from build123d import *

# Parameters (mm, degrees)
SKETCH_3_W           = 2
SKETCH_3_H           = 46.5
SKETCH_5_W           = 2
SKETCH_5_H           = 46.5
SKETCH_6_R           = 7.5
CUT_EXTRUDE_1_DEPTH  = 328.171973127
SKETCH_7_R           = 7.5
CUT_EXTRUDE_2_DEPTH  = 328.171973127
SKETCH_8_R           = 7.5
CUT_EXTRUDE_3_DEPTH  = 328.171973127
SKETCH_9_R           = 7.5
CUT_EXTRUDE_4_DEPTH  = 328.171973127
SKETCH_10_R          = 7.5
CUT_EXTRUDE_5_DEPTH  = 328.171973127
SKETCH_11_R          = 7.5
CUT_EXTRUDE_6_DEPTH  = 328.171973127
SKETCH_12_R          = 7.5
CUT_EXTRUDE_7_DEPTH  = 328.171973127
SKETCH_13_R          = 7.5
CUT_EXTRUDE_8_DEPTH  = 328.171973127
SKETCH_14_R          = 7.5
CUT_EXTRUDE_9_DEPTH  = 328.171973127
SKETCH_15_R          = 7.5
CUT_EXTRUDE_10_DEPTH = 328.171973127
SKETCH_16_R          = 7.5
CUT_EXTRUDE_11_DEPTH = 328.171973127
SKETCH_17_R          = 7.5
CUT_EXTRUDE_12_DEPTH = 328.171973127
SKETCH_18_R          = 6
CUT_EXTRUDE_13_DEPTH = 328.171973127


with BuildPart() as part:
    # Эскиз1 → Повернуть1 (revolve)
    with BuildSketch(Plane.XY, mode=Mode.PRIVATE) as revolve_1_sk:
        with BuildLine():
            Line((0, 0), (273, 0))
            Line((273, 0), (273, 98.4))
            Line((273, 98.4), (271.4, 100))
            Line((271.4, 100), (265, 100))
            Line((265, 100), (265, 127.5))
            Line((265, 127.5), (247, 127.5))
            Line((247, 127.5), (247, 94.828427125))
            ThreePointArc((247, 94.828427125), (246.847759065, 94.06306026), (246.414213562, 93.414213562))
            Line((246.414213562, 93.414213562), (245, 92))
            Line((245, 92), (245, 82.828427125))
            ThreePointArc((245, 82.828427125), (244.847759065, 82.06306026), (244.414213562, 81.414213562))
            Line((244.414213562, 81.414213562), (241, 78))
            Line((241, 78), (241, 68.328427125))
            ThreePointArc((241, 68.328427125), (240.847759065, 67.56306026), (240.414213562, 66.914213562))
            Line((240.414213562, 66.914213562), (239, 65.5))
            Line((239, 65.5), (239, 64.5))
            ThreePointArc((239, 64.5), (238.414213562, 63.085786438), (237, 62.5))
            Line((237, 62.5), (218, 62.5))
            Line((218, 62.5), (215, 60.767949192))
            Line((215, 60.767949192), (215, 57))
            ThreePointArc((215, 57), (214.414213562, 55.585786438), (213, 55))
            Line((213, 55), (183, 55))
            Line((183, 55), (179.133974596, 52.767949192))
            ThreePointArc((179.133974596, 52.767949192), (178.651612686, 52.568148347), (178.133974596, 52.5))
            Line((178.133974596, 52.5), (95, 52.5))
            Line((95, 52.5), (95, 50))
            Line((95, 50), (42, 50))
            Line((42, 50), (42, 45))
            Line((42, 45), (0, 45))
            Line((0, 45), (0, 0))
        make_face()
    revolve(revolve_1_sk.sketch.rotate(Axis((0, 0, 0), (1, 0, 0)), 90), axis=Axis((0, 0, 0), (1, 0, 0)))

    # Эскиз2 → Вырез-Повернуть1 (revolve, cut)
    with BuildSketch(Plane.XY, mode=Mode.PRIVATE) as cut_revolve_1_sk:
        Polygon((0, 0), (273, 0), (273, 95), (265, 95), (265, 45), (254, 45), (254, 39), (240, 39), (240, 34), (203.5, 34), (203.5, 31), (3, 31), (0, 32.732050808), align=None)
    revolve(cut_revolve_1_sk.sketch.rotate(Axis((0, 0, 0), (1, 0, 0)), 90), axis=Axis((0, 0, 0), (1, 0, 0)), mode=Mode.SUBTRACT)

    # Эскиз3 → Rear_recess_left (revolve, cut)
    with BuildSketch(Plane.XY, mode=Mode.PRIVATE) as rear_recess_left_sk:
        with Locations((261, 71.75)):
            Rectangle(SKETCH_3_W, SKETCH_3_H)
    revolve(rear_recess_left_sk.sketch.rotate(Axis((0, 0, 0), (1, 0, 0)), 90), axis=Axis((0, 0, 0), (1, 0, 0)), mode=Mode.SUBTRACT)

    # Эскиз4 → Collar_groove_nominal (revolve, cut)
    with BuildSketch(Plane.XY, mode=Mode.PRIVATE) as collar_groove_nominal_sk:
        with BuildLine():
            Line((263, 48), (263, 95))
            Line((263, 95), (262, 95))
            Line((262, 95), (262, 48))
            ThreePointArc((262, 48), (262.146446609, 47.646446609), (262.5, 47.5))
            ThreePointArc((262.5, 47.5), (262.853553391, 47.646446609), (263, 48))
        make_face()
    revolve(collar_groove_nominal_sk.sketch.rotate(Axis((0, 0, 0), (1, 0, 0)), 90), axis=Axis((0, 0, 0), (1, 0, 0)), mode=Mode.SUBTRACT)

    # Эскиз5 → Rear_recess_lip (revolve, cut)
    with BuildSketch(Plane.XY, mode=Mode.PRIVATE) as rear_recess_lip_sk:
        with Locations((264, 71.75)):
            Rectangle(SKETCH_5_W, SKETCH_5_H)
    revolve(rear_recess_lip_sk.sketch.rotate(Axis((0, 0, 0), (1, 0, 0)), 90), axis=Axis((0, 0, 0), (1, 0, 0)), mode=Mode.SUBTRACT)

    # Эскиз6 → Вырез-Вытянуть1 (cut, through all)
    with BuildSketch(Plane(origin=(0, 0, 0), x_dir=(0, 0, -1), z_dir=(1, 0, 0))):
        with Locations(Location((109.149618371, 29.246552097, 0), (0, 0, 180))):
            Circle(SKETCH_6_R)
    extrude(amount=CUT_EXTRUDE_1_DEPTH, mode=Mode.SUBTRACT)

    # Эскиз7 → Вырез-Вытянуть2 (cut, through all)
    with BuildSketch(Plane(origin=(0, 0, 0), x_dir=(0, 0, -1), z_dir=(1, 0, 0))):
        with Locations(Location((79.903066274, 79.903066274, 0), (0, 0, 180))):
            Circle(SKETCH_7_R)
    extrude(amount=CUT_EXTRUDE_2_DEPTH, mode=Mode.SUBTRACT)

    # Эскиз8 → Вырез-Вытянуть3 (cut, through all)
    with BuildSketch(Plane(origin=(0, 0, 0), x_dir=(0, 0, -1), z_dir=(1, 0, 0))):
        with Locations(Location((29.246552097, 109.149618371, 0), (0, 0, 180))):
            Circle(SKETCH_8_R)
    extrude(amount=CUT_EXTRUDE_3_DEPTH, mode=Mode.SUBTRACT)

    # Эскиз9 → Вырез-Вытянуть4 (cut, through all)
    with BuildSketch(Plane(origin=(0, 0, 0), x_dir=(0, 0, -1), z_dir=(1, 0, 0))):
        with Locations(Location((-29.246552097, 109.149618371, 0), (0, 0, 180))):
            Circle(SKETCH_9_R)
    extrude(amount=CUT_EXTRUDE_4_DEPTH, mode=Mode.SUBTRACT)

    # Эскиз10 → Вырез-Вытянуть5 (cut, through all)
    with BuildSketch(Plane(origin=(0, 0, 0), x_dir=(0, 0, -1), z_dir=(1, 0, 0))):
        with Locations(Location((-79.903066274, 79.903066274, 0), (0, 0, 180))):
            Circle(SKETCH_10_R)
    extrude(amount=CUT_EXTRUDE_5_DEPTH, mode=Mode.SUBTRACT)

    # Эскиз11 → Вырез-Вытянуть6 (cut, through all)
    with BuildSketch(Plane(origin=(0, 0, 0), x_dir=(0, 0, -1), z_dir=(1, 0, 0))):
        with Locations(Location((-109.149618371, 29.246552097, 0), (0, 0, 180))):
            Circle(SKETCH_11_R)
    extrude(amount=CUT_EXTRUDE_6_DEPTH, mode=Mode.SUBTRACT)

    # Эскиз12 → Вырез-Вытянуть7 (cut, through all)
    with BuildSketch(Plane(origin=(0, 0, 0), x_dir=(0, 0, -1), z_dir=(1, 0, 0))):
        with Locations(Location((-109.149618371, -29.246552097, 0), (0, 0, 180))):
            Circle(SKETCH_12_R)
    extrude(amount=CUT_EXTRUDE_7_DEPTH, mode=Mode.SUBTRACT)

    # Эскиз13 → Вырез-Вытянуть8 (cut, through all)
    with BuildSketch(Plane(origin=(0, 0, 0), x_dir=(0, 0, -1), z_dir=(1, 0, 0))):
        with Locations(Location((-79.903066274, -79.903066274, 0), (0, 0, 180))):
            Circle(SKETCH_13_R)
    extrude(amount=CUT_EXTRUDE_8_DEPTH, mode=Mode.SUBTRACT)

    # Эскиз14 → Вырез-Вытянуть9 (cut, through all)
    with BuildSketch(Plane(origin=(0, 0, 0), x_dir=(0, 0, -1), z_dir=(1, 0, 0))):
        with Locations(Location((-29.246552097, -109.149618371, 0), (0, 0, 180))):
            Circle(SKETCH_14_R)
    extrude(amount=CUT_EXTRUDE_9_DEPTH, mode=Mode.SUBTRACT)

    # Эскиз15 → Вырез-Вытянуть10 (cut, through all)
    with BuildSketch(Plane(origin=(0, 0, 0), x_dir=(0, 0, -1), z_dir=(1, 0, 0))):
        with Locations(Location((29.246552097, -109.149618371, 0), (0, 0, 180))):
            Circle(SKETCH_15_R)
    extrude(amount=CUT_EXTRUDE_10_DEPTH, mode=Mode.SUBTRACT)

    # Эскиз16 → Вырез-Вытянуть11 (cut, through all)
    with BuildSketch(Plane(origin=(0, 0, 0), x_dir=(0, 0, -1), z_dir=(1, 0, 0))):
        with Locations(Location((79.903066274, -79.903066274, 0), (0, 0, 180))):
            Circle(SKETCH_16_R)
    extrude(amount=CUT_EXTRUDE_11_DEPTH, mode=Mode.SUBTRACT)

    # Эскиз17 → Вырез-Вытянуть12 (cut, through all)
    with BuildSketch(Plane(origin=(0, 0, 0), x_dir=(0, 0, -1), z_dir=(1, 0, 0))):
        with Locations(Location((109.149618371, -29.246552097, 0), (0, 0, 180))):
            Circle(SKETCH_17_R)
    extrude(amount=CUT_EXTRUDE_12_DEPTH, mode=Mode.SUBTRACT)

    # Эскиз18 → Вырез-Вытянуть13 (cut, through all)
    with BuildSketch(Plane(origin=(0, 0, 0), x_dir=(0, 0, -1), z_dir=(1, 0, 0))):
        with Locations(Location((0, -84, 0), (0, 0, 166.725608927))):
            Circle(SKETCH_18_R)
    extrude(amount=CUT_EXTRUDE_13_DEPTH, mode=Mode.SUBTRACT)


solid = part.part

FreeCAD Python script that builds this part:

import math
import FreeCAD as App
import Part
import Sketcher
Q = App.Units.Quantity

doc = App.newDocument("Part")
params = doc.addObject("Spreadsheet::Sheet", "Params")
for row, (alias, value) in enumerate([
    ("sketch1_radius", "2 mm"),
    ("sketch1_width", "273 mm"),
    ("sketch1_width2", "18 mm"),
    ("sketch1_width3", "19 mm"),
    ("sketch1_width4", "30 mm"),
    ("revolution_angle", "360 deg"),
    ("sketch2_width", "273 mm"),
    ("sketch2_width2", "8 mm"),
    ("sketch2_width3", "11 mm"),
    ("sketch2_width4", "14 mm"),
    ("sketch2_height", "95 mm"),
    ("groove_angle", "360 deg"),
    ("sketch3_width", "2 mm"),
    ("sketch3_height", "46.5 mm"),
    ("groove2_angle", "360 deg"),
    ("sketch4_radius", "0.5 mm"),
    ("sketch4_height", "47 mm"),
    ("groove3_angle", "360 deg"),
    ("sketch5_width", "2 mm"),
    ("sketch5_height", "46.5 mm"),
    ("groove4_angle", "360 deg"),
    ("sketch6_diameter", "15 mm"),
    ("sketch7_diameter", "15 mm"),
    ("sketch8_diameter", "15 mm"),
    ("sketch9_diameter", "15 mm"),
    ("sketch10_diameter", "15 mm"),
    ("sketch11_diameter", "15 mm"),
    ("sketch12_diameter", "15 mm"),
    ("sketch13_diameter", "15 mm"),
    ("sketch14_diameter", "15 mm"),
    ("sketch15_diameter", "15 mm"),
    ("sketch16_diameter", "15 mm"),
    ("sketch17_diameter", "15 mm"),
    ("sketch18_diameter", "12 mm"),
], start=1):
    params.set(f"A{row}", alias)
    params.set(f"B{row}", "=" + value)
    params.setAlias(f"B{row}", alias)

body = doc.addObject("PartDesign::Body", "Body")

sketch1 = body.newObject("Sketcher::SketchObject", "Sketch")
sketch1.AttachmentSupport = (doc.getObject("XY_Plane"), [""])
sketch1.MapMode = "FlatFace"
sketch1.addGeometry([
    Part.LineSegment(App.Vector(0, 0, 0), App.Vector(273, 0, 0)),
    Part.LineSegment(App.Vector(273, 0, 0), App.Vector(273, 98.4, 0)),
    Part.LineSegment(App.Vector(273, 98.4, 0), App.Vector(271.4, 100, 0)),
    Part.LineSegment(App.Vector(271.4, 100, 0), App.Vector(265, 100, 0)),
    Part.LineSegment(App.Vector(265, 100, 0), App.Vector(265, 127.5, 0)),
    Part.LineSegment(App.Vector(265, 127.5, 0), App.Vector(247, 127.5, 0)),
    Part.LineSegment(App.Vector(247, 127.5, 0), App.Vector(247, 94.8, 0)),
    Part.ArcOfCircle(Part.Circle(App.Vector(245, 94.8, 0), App.Vector(0, 0, 1), 2), math.radians(-45), math.radians(0)),
    Part.LineSegment(App.Vector(246.4, 93.4, 0), App.Vector(245, 92, 0)),
    Part.LineSegment(App.Vector(245, 92, 0), App.Vector(245, 82.8, 0)),
    Part.ArcOfCircle(Part.Circle(App.Vector(243, 82.8, 0), App.Vector(0, 0, 1), 2), math.radians(-45), math.radians(0)),
    Part.LineSegment(App.Vector(244.4, 81.4, 0), App.Vector(241, 78, 0)),
    Part.LineSegment(App.Vector(241, 78, 0), App.Vector(241, 68.3, 0)),
    Part.ArcOfCircle(Part.Circle(App.Vector(239, 68.3, 0), App.Vector(0, 0, 1), 2), math.radians(-45), math.radians(0)),
    Part.LineSegment(App.Vector(240.4, 66.9, 0), App.Vector(239, 65.5, 0)),
    Part.LineSegment(App.Vector(239, 65.5, 0), App.Vector(239, 64.5, 0)),
    Part.ArcOfCircle(Part.Circle(App.Vector(237, 64.5, 0), App.Vector(0, 0, 1), 2), math.radians(-90), math.radians(0)),
    Part.LineSegment(App.Vector(237, 62.5, 0), App.Vector(218, 62.5, 0)),
    Part.LineSegment(App.Vector(218, 62.5, 0), App.Vector(215, 60.8, 0)),
    Part.LineSegment(App.Vector(215, 60.8, 0), App.Vector(215, 57, 0)),
    Part.ArcOfCircle(Part.Circle(App.Vector(213, 57, 0), App.Vector(0, 0, 1), 2), math.radians(-90), math.radians(0)),
    Part.LineSegment(App.Vector(213, 55, 0), App.Vector(183, 55, 0)),
    Part.LineSegment(App.Vector(183, 55, 0), App.Vector(179.1, 52.8, 0)),
    Part.ArcOfCircle(Part.Circle(App.Vector(178.1, 54.5, 0), App.Vector(0, 0, 1), 2), math.radians(-90), math.radians(-60)),
    Part.LineSegment(App.Vector(178.1, 52.5, 0), App.Vector(95, 52.5, 0)),
    Part.LineSegment(App.Vector(95, 52.5, 0), App.Vector(95, 50, 0)),
    Part.LineSegment(App.Vector(95, 50, 0), App.Vector(42, 50, 0)),
    Part.LineSegment(App.Vector(42, 50, 0), App.Vector(42, 45, 0)),
    Part.LineSegment(App.Vector(42, 45, 0), App.Vector(0, 45, 0)),
    Part.LineSegment(App.Vector(0, 45, 0), App.Vector(0, 0, 0)),
], False)
sketch1.addConstraint([
    Sketcher.Constraint("Coincident", 0, 2, 1, 1),
    Sketcher.Constraint("Coincident", 1, 2, 2, 1),
    Sketcher.Constraint("Coincident", 2, 2, 3, 1),
    Sketcher.Constraint("Coincident", 3, 2, 4, 1),
    Sketcher.Constraint("Coincident", 4, 2, 5, 1),
    Sketcher.Constraint("Coincident", 5, 2, 6, 1),
    Sketcher.Constraint("Tangent", 6, 2, 7, 2),
    Sketcher.Constraint("Tangent", 7, 1, 8, 1),
    Sketcher.Constraint("Coincident", 8, 2, 9, 1),
    Sketcher.Constraint("Tangent", 9, 2, 10, 2),
    Sketcher.Constraint("Tangent", 10, 1, 11, 1),
    Sketcher.Constraint("Coincident", 11, 2, 12, 1),
    Sketcher.Constraint("Tangent", 12, 2, 13, 2),
    Sketcher.Constraint("Tangent", 13, 1, 14, 1),
    Sketcher.Constraint("Coincident", 14, 2, 15, 1),
    Sketcher.Constraint("Tangent", 15, 2, 16, 2),
    Sketcher.Constraint("Tangent", 16, 1, 17, 1),
    Sketcher.Constraint("Coincident", 17, 2, 18, 1),
    Sketcher.Constraint("Coincident", 18, 2, 19, 1),
    Sketcher.Constraint("Tangent", 19, 2, 20, 2),
    Sketcher.Constraint("Tangent", 20, 1, 21, 1),
    Sketcher.Constraint("Coincident", 21, 2, 22, 1),
    Sketcher.Constraint("Tangent", 22, 2, 23, 2),
    Sketcher.Constraint("Tangent", 23, 1, 24, 1),
    Sketcher.Constraint("Coincident", 24, 2, 25, 1),
    Sketcher.Constraint("Coincident", 25, 2, 26, 1),
    Sketcher.Constraint("Coincident", 26, 2, 27, 1),
    Sketcher.Constraint("Coincident", 27, 2, 28, 1),
    Sketcher.Constraint("Coincident", 28, 2, 29, 1),
    Sketcher.Constraint("Coincident", 29, 2, 0, 1),
    Sketcher.Constraint("Horizontal", 0),
    Sketcher.Constraint("Vertical", 1),
    Sketcher.Constraint("Horizontal", 3),
    Sketcher.Constraint("Vertical", 4),
    Sketcher.Constraint("Horizontal", 5),
    Sketcher.Constraint("Vertical", 6),
    Sketcher.Constraint("Vertical", 9),
    Sketcher.Constraint("Vertical", 12),
    Sketcher.Constraint("Vertical", 15),
    Sketcher.Constraint("Horizontal", 17),
    Sketcher.Constraint("Vertical", 19),
    Sketcher.Constraint("Horizontal", 21),
    Sketcher.Constraint("Horizontal", 24),
    Sketcher.Constraint("Vertical", 25),
    Sketcher.Constraint("Horizontal", 26),
    Sketcher.Constraint("Vertical", 27),
    Sketcher.Constraint("Horizontal", 28),
    Sketcher.Constraint("Vertical", 29),
    Sketcher.Constraint("Coincident", 29, 2, -1, 1),
    Sketcher.Constraint("Equal", 7, 10),
    Sketcher.Constraint("Equal", 10, 13),
    Sketcher.Constraint("Equal", 13, 16),
    Sketcher.Constraint("Equal", 16, 20),
    Sketcher.Constraint("Equal", 20, 23),
    Sketcher.Constraint("Perpendicular", 2, 8),
    Sketcher.Constraint("Parallel", 8, 11),
    Sketcher.Constraint("Parallel", 11, 14),
    Sketcher.Constraint("Parallel", 18, 22),
    Sketcher.Constraint("Vertical", 7, 3, 8, 2),
    Sketcher.Constraint("Vertical", 13, 3, 14, 2),
    Sketcher.Constraint("Radius", 7, 2.0),
    Sketcher.Constraint("DistanceX", 0, 1, 0, 2, 273.0),
    Sketcher.Constraint("DistanceX", 5, 2, 5, 1, 18.0),
    Sketcher.Constraint("DistanceX", 17, 2, 17, 1, 19.0),
    Sketcher.Constraint("DistanceX", 21, 2, 21, 1, 30.0),
    Sketcher.Constraint("DistanceX", 26, 2, 26, 1, 53.0),
    Sketcher.Constraint("DistanceX", 28, 2, 28, 1, 42.0),
    Sketcher.Constraint("DistanceY", 15, 2, 15, 1, 1.0),
    Sketcher.Constraint("DistanceY", 27, 2, 27, 1, 5.0),
    Sketcher.Constraint("DistanceY", 29, 2, 29, 1, 45.0),
    Sketcher.Constraint("Angle", 2, Q("135 deg")),
    Sketcher.Constraint("Angle", 18, Q("-150 deg")),
    Sketcher.Constraint("DistanceX", 3, 2, 3, 1, 6.4),
    Sketcher.Constraint("DistanceY", 1, 1, 1, 2, 98.4),
    Sketcher.Constraint("DistanceY", 4, 1, 4, 2, 27.5),
    Sketcher.Constraint("DistanceY", 25, 2, 25, 1, 2.5),
    Sketcher.Constraint("DistanceX", -1, 1, 7, 3, 245.0),
    Sketcher.Constraint("DistanceX", -1, 1, 13, 3, 239.0),
    Sketcher.Constraint("DistanceX", -1, 1, 20, 3, 213.0),
    Sketcher.Constraint("DistanceY", -1, 1, 20, 3, 57.0),
    Sketcher.Constraint("DistanceY", -1, 1, 8, 2, 92.0),
    Sketcher.Constraint("DistanceY", -1, 1, 11, 2, 78.0),
    Sketcher.Constraint("DistanceY", 23, 3, 16, 3, 10.0),
])
sketch1.setExpression("Constraints[60]", "Params.sketch1_radius")
sketch1.setExpression("Constraints[61]", "Params.sketch1_width")
sketch1.setExpression("Constraints[62]", "Params.sketch1_width2")
sketch1.setExpression("Constraints[63]", "Params.sketch1_width3")
sketch1.setExpression("Constraints[64]", "Params.sketch1_width4")
revolution = body.newObject("PartDesign::Revolution", "Revolution")
revolution.Profile = sketch1
revolution.ReferenceAxis = (sketch1, ["H_Axis"])
revolution.setExpression("Angle", "Params.revolution_angle")

sketch2 = body.newObject("Sketcher::SketchObject", "Sketch001")
sketch2.AttachmentSupport = (doc.getObject("XY_Plane"), [""])
sketch2.MapMode = "FlatFace"
sketch2.addGeometry([
    Part.LineSegment(App.Vector(0, 0, 0), App.Vector(273, 0, 0)),
    Part.LineSegment(App.Vector(273, 0, 0), App.Vector(273, 95, 0)),
    Part.LineSegment(App.Vector(273, 95, 0), App.Vector(265, 95, 0)),
    Part.LineSegment(App.Vector(265, 95, 0), App.Vector(265, 45, 0)),
    Part.LineSegment(App.Vector(265, 45, 0), App.Vector(254, 45, 0)),
    Part.LineSegment(App.Vector(254, 45, 0), App.Vector(254, 39, 0)),
    Part.LineSegment(App.Vector(254, 39, 0), App.Vector(240, 39, 0)),
    Part.LineSegment(App.Vector(240, 39, 0), App.Vector(240, 34, 0)),
    Part.LineSegment(App.Vector(240, 34, 0), App.Vector(203.5, 34, 0)),
    Part.LineSegment(App.Vector(203.5, 34, 0), App.Vector(203.5, 31, 0)),
    Part.LineSegment(App.Vector(203.5, 31, 0), App.Vector(3, 31, 0)),
    Part.LineSegment(App.Vector(3, 31, 0), App.Vector(0, 32.7, 0)),
    Part.LineSegment(App.Vector(0, 32.7, 0), App.Vector(0, 0, 0)),
], False)
sketch2.addConstraint([
    Sketcher.Constraint("Coincident", 0, 2, 1, 1),
    Sketcher.Constraint("Coincident", 1, 2, 2, 1),
    Sketcher.Constraint("Coincident", 2, 2, 3, 1),
    Sketcher.Constraint("Coincident", 3, 2, 4, 1),
    Sketcher.Constraint("Coincident", 4, 2, 5, 1),
    Sketcher.Constraint("Coincident", 5, 2, 6, 1),
    Sketcher.Constraint("Coincident", 6, 2, 7, 1),
    Sketcher.Constraint("Coincident", 7, 2, 8, 1),
    Sketcher.Constraint("Coincident", 8, 2, 9, 1),
    Sketcher.Constraint("Coincident", 9, 2, 10, 1),
    Sketcher.Constraint("Coincident", 10, 2, 11, 1),
    Sketcher.Constraint("Coincident", 11, 2, 12, 1),
    Sketcher.Constraint("Coincident", 12, 2, 0, 1),
    Sketcher.Constraint("Horizontal", 0),
    Sketcher.Constraint("Vertical", 1),
    Sketcher.Constraint("Horizontal", 2),
    Sketcher.Constraint("Vertical", 3),
    Sketcher.Constraint("Horizontal", 4),
    Sketcher.Constraint("Vertical", 5),
    Sketcher.Constraint("Horizontal", 6),
    Sketcher.Constraint("Vertical", 7),
    Sketcher.Constraint("Horizontal", 8),
    Sketcher.Constraint("Vertical", 9),
    Sketcher.Constraint("Horizontal", 10),
    Sketcher.Constraint("Vertical", 12),
    Sketcher.Constraint("Coincident", 12, 2, -1, 1),
    Sketcher.Constraint("DistanceX", 0, 1, 0, 2, 273.0),
    Sketcher.Constraint("DistanceX", 2, 2, 2, 1, 8.0),
    Sketcher.Constraint("DistanceX", 4, 2, 4, 1, 11.0),
    Sketcher.Constraint("DistanceX", 6, 2, 6, 1, 14.0),
    Sketcher.Constraint("DistanceY", 1, 1, 1, 2, 95.0),
    Sketcher.Constraint("DistanceY", 3, 2, 3, 1, 50.0),
    Sketcher.Constraint("DistanceY", 5, 2, 5, 1, 6.0),
    Sketcher.Constraint("DistanceY", 7, 2, 7, 1, 5.0),
    Sketcher.Constraint("DistanceY", 9, 2, 9, 1, 3.0),
    Sketcher.Constraint("Angle", 11, Q("150 deg")),
    Sketcher.Constraint("DistanceX", 8, 2, 8, 1, 36.5),
    Sketcher.Constraint("DistanceX", 10, 2, 10, 1, 200.5),
])
sketch2.setExpression("Constraints[26]", "Params.sketch2_width")
sketch2.setExpression("Constraints[27]", "Params.sketch2_width2")
sketch2.setExpression("Constraints[28]", "Params.sketch2_width3")
sketch2.setExpression("Constraints[29]", "Params.sketch2_width4")
sketch2.setExpression("Constraints[30]", "Params.sketch2_height")
groove = body.newObject("PartDesign::Groove", "Groove")
groove.Profile = sketch2
groove.ReferenceAxis = (sketch2, ["H_Axis"])
groove.setExpression("Angle", "Params.groove_angle")

sketch3 = body.newObject("Sketcher::SketchObject", "Sketch002")
sketch3.AttachmentSupport = (doc.getObject("XY_Plane"), [""])
sketch3.MapMode = "FlatFace"
sketch3.addGeometry([
    Part.LineSegment(App.Vector(260, 95, 0), App.Vector(260, 48.5, 0)),
    Part.LineSegment(App.Vector(260, 48.5, 0), App.Vector(262, 48.5, 0)),
    Part.LineSegment(App.Vector(262, 48.5, 0), App.Vector(262, 95, 0)),
    Part.LineSegment(App.Vector(262, 95, 0), App.Vector(260, 95, 0)),
], False)
sketch3.addConstraint([
    Sketcher.Constraint("Coincident", 0, 2, 1, 1),
    Sketcher.Constraint("Coincident", 1, 2, 2, 1),
    Sketcher.Constraint("Coincident", 2, 2, 3, 1),
    Sketcher.Constraint("Coincident", 3, 2, 0, 1),
    Sketcher.Constraint("Vertical", 0),
    Sketcher.Constraint("Horizontal", 1),
    Sketcher.Constraint("Vertical", 2),
    Sketcher.Constraint("Horizontal", 3),
    Sketcher.Constraint("DistanceX", 1, 1, 1, 2, 2.0),
    Sketcher.Constraint("DistanceY", 0, 2, 0, 1, 46.5),
    Sketcher.Constraint("DistanceX", -1, 1, 0, 2, 260.0),
    Sketcher.Constraint("DistanceY", -1, 1, 2, 2, 95.0),
])
sketch3.setExpression("Constraints[8]", "Params.sketch3_width")
sketch3.setExpression("Constraints[9]", "Params.sketch3_height")
groove2 = body.newObject("PartDesign::Groove", "Groove001")
groove2.Profile = sketch3
groove2.ReferenceAxis = (sketch3, ["H_Axis"])
groove2.setExpression("Angle", "Params.groove2_angle")

sketch4 = body.newObject("Sketcher::SketchObject", "Sketch003")
sketch4.AttachmentSupport = (doc.getObject("XY_Plane"), [""])
sketch4.MapMode = "FlatFace"
sketch4.addGeometry([
    Part.LineSegment(App.Vector(263, 48, 0), App.Vector(263, 95, 0)),
    Part.LineSegment(App.Vector(263, 95, 0), App.Vector(262, 95, 0)),
    Part.LineSegment(App.Vector(262, 95, 0), App.Vector(262, 48, 0)),
    Part.ArcOfCircle(Part.Circle(App.Vector(262.5, 48, 0), App.Vector(0, 0, 1), 0.5), math.radians(180), math.radians(270)),
    Part.ArcOfCircle(Part.Circle(App.Vector(262.5, 48, 0), App.Vector(0, 0, 1), 0.5), math.radians(-90), math.radians(0)),
], False)
sketch4.addConstraint([
    Sketcher.Constraint("Coincident", 0, 2, 1, 1),
    Sketcher.Constraint("Coincident", 1, 2, 2, 1),
    Sketcher.Constraint("Tangent", 2, 2, 3, 1),
    Sketcher.Constraint("Tangent", 3, 2, 4, 1),
    Sketcher.Constraint("Tangent", 4, 2, 0, 1),
    Sketcher.Constraint("Vertical", 0),
    Sketcher.Constraint("Horizontal", 1),
    Sketcher.Constraint("Vertical", 2),
    Sketcher.Constraint("Equal", 3, 4),
    Sketcher.Constraint("Vertical", 4, 3, 3, 2),
    Sketcher.Constraint("Radius", 3, 0.5),
    Sketcher.Constraint("DistanceY", 0, 1, 0, 2, 47.0),
    Sketcher.Constraint("DistanceY", -1, 1, 3, 3, 48.0),
    Sketcher.Constraint("DistanceX", -1, 1, 0, 2, 263.0),
])
sketch4.setExpression("Constraints[10]", "Params.sketch4_radius")
sketch4.setExpression("Constraints[11]", "Params.sketch4_height")
groove3 = body.newObject("PartDesign::Groove", "Groove002")
groove3.Profile = sketch4
groove3.ReferenceAxis = (sketch4, ["H_Axis"])
groove3.setExpression("Angle", "Params.groove3_angle")

sketch5 = body.newObject("Sketcher::SketchObject", "Sketch004")
sketch5.AttachmentSupport = (doc.getObject("XY_Plane"), [""])
sketch5.MapMode = "FlatFace"
sketch5.addGeometry([
    Part.LineSegment(App.Vector(263, 95, 0), App.Vector(263, 48.5, 0)),
    Part.LineSegment(App.Vector(263, 48.5, 0), App.Vector(265, 48.5, 0)),
    Part.LineSegment(App.Vector(265, 48.5, 0), App.Vector(265, 95, 0)),
    Part.LineSegment(App.Vector(265, 95, 0), App.Vector(263, 95, 0)),
], False)
sketch5.addConstraint([
    Sketcher.Constraint("Coincident", 0, 2, 1, 1),
    Sketcher.Constraint("Coincident", 1, 2, 2, 1),
    Sketcher.Constraint("Coincident", 2, 2, 3, 1),
    Sketcher.Constraint("Coincident", 3, 2, 0, 1),
    Sketcher.Constraint("Vertical", 0),
    Sketcher.Constraint("Horizontal", 1),
    Sketcher.Constraint("Vertical", 2),
    Sketcher.Constraint("Horizontal", 3),
    Sketcher.Constraint("DistanceX", 1, 1, 1, 2, 2.0),
    Sketcher.Constraint("DistanceY", 0, 2, 0, 1, 46.5),
    Sketcher.Constraint("DistanceX", -1, 1, 0, 2, 263.0),
    Sketcher.Constraint("DistanceY", -1, 1, 2, 2, 95.0),
])
sketch5.setExpression("Constraints[8]", "Params.sketch5_width")
sketch5.setExpression("Constraints[9]", "Params.sketch5_height")
groove4 = body.newObject("PartDesign::Groove", "Groove003")
groove4.Profile = sketch5
groove4.ReferenceAxis = (sketch5, ["H_Axis"])
groove4.setExpression("Angle", "Params.groove4_angle")

sketch6 = body.newObject("Sketcher::SketchObject", "Sketch005")
sketch6.AttachmentSupport = (doc.getObject("YZ_Plane"), [""])
sketch6.MapMode = "FlatFace"
sketch6.addGeometry(Part.Circle(App.Vector(29, -109, 0), App.Vector(0, 0, 1), 8), False)
sketch6.addConstraint([
    Sketcher.Constraint("Diameter", 0, 15.0),
    Sketcher.Constraint("DistanceY", 0, 3, -1, 1, 109.149618),
    Sketcher.Constraint("DistanceX", -1, 1, 0, 3, 29.246552),
])
sketch6.setExpression("Constraints[0]", "Params.sketch6_diameter")
pocket1 = body.newObject("PartDesign::Pocket", "Pocket")
pocket1.Profile = sketch6
pocket1.Type = "ThroughAll"
pocket1.Reversed = True

sketch7 = body.newObject("Sketcher::SketchObject", "Sketch006")
sketch7.AttachmentSupport = (doc.getObject("YZ_Plane"), [""])
sketch7.MapMode = "FlatFace"
sketch7.addGeometry(Part.Circle(App.Vector(80, -80, 0), App.Vector(0, 0, 1), 8), False)
sketch7.addConstraint([
    Sketcher.Constraint("Diameter", 0, 15.0),
    Sketcher.Constraint("DistanceX", -1, 1, 0, 3, 79.903066),
    Sketcher.Constraint("DistanceY", 0, 3, -1, 1, 79.903066),
])
sketch7.setExpression("Constraints[0]", "Params.sketch7_diameter")
pocket2 = body.newObject("PartDesign::Pocket", "Pocket001")
pocket2.Profile = sketch7
pocket2.Type = "ThroughAll"
pocket2.Reversed = True

sketch8 = body.newObject("Sketcher::SketchObject", "Sketch007")
sketch8.AttachmentSupport = (doc.getObject("YZ_Plane"), [""])
sketch8.MapMode = "FlatFace"
sketch8.addGeometry(Part.Circle(App.Vector(109, -29, 0), App.Vector(0, 0, 1), 8), False)
sketch8.addConstraint([
    Sketcher.Constraint("Diameter", 0, 15.0),
    Sketcher.Constraint("DistanceX", -1, 1, 0, 3, 109.149618),
    Sketcher.Constraint("DistanceY", 0, 3, -1, 1, 29.246552),
])
sketch8.setExpression("Constraints[0]", "Params.sketch8_diameter")
pocket3 = body.newObject("PartDesign::Pocket", "Pocket002")
pocket3.Profile = sketch8
pocket3.Type = "ThroughAll"
pocket3.Reversed = True

sketch9 = body.newObject("Sketcher::SketchObject", "Sketch008")
sketch9.AttachmentSupport = (doc.getObject("YZ_Plane"), [""])
sketch9.MapMode = "FlatFace"
sketch9.addGeometry(Part.Circle(App.Vector(109, 29, 0), App.Vector(0, 0, 1), 8), False)
sketch9.addConstraint([
    Sketcher.Constraint("Diameter", 0, 15.0),
    Sketcher.Constraint("DistanceX", -1, 1, 0, 3, 109.149618),
    Sketcher.Constraint("DistanceY", -1, 1, 0, 3, 29.246552),
])
sketch9.setExpression("Constraints[0]", "Params.sketch9_diameter")
pocket4 = body.newObject("PartDesign::Pocket", "Pocket003")
pocket4.Profile = sketch9
pocket4.Type = "ThroughAll"
pocket4.Reversed = True

sketch10 = body.newObject("Sketcher::SketchObject", "Sketch009")
sketch10.AttachmentSupport = (doc.getObject("YZ_Plane"), [""])
sketch10.MapMode = "FlatFace"
sketch10.addGeometry(Part.Circle(App.Vector(80, 80, 0), App.Vector(0, 0, 1), 8), False)
sketch10.addConstraint([
    Sketcher.Constraint("Diameter", 0, 15.0),
    Sketcher.Constraint("DistanceX", -1, 1, 0, 3, 79.903066),
    Sketcher.Constraint("DistanceY", -1, 1, 0, 3, 79.903066),
])
sketch10.setExpression("Constraints[0]", "Params.sketch10_diameter")
pocket5 = body.newObject("PartDesign::Pocket", "Pocket004")
pocket5.Profile = sketch10
pocket5.Type = "ThroughAll"
pocket5.Reversed = True

sketch11 = body.newObject("Sketcher::SketchObject", "Sketch010")
sketch11.AttachmentSupport = (doc.getObject("YZ_Plane"), [""])
sketch11.MapMode = "FlatFace"
sketch11.addGeometry(Part.Circle(App.Vector(29, 109, 0), App.Vector(0, 0, 1), 8), False)
sketch11.addConstraint([
    Sketcher.Constraint("Diameter", 0, 15.0),
    Sketcher.Constraint("DistanceY", -1, 1, 0, 3, 109.149618),
    Sketcher.Constraint("DistanceX", -1, 1, 0, 3, 29.246552),
])
sketch11.setExpression("Constraints[0]", "Params.sketch11_diameter")
pocket6 = body.newObject("PartDesign::Pocket", "Pocket005")
pocket6.Profile = sketch11
pocket6.Type = "ThroughAll"
pocket6.Reversed = True

sketch12 = body.newObject("Sketcher::SketchObject", "Sketch011")
sketch12.AttachmentSupport = (doc.getObject("YZ_Plane"), [""])
sketch12.MapMode = "FlatFace"
sketch12.addGeometry(Part.Circle(App.Vector(-29, 109, 0), App.Vector(0, 0, 1), 8), False)
sketch12.addConstraint([
    Sketcher.Constraint("Diameter", 0, 15.0),
    Sketcher.Constraint("DistanceY", -1, 1, 0, 3, 109.149618),
    Sketcher.Constraint("DistanceX", 0, 3, -1, 1, 29.246552),
])
sketch12.setExpression("Constraints[0]", "Params.sketch12_diameter")
pocket7 = body.newObject("PartDesign::Pocket", "Pocket006")
pocket7.Profile = sketch12
pocket7.Type = "ThroughAll"
pocket7.Reversed = True

sketch13 = body.newObject("Sketcher::SketchObject", "Sketch012")
sketch13.AttachmentSupport = (doc.getObject("YZ_Plane"), [""])
sketch13.MapMode = "FlatFace"
sketch13.addGeometry(Part.Circle(App.Vector(-80, 80, 0), App.Vector(0, 0, 1), 8), False)
sketch13.addConstraint([
    Sketcher.Constraint("Diameter", 0, 15.0),
    Sketcher.Constraint("DistanceX", 0, 3, -1, 1, 79.903066),
    Sketcher.Constraint("DistanceY", -1, 1, 0, 3, 79.903066),
])
sketch13.setExpression("Constraints[0]", "Params.sketch13_diameter")
pocket8 = body.newObject("PartDesign::Pocket", "Pocket007")
pocket8.Profile = sketch13
pocket8.Type = "ThroughAll"
pocket8.Reversed = True

sketch14 = body.newObject("Sketcher::SketchObject", "Sketch013")
sketch14.AttachmentSupport = (doc.getObject("YZ_Plane"), [""])
sketch14.MapMode = "FlatFace"
sketch14.addGeometry(Part.Circle(App.Vector(-109, 29, 0), App.Vector(0, 0, 1), 8), False)
sketch14.addConstraint([
    Sketcher.Constraint("Diameter", 0, 15.0),
    Sketcher.Constraint("DistanceX", 0, 3, -1, 1, 109.149618),
    Sketcher.Constraint("DistanceY", -1, 1, 0, 3, 29.246552),
])
sketch14.setExpression("Constraints[0]", "Params.sketch14_diameter")
pocket9 = body.newObject("PartDesign::Pocket", "Pocket008")
pocket9.Profile = sketch14
pocket9.Type = "ThroughAll"
pocket9.Reversed = True

sketch15 = body.newObject("Sketcher::SketchObject", "Sketch014")
sketch15.AttachmentSupport = (doc.getObject("YZ_Plane"), [""])
sketch15.MapMode = "FlatFace"
sketch15.addGeometry(Part.Circle(App.Vector(-109, -29, 0), App.Vector(0, 0, 1), 8), False)
sketch15.addConstraint([
    Sketcher.Constraint("Diameter", 0, 15.0),
    Sketcher.Constraint("DistanceX", 0, 3, -1, 1, 109.149618),
    Sketcher.Constraint("DistanceY", 0, 3, -1, 1, 29.246552),
])
sketch15.setExpression("Constraints[0]", "Params.sketch15_diameter")
pocket10 = body.newObject("PartDesign::Pocket", "Pocket009")
pocket10.Profile = sketch15
pocket10.Type = "ThroughAll"
pocket10.Reversed = True

sketch16 = body.newObject("Sketcher::SketchObject", "Sketch015")
sketch16.AttachmentSupport = (doc.getObject("YZ_Plane"), [""])
sketch16.MapMode = "FlatFace"
sketch16.addGeometry(Part.Circle(App.Vector(-80, -80, 0), App.Vector(0, 0, 1), 8), False)
sketch16.addConstraint([
    Sketcher.Constraint("Diameter", 0, 15.0),
    Sketcher.Constraint("DistanceX", 0, 3, -1, 1, 79.903066),
    Sketcher.Constraint("DistanceY", 0, 3, -1, 1, 79.903066),
])
sketch16.setExpression("Constraints[0]", "Params.sketch16_diameter")
pocket11 = body.newObject("PartDesign::Pocket", "Pocket010")
pocket11.Profile = sketch16
pocket11.Type = "ThroughAll"
pocket11.Reversed = True

sketch17 = body.newObject("Sketcher::SketchObject", "Sketch016")
sketch17.AttachmentSupport = (doc.getObject("YZ_Plane"), [""])
sketch17.MapMode = "FlatFace"
sketch17.addGeometry(Part.Circle(App.Vector(-29, -109, 0), App.Vector(0, 0, 1), 8), False)
sketch17.addConstraint([
    Sketcher.Constraint("Diameter", 0, 15.0),
    Sketcher.Constraint("DistanceY", 0, 3, -1, 1, 109.149618),
    Sketcher.Constraint("DistanceX", 0, 3, -1, 1, 29.246552),
])
sketch17.setExpression("Constraints[0]", "Params.sketch17_diameter")
pocket12 = body.newObject("PartDesign::Pocket", "Pocket011")
pocket12.Profile = sketch17
pocket12.Type = "ThroughAll"
pocket12.Reversed = True

sketch18 = body.newObject("Sketcher::SketchObject", "Sketch017")
sketch18.AttachmentSupport = (doc.getObject("YZ_Plane"), [""])
sketch18.MapMode = "FlatFace"
sketch18.addGeometry(Part.Circle(App.Vector(-84, 0, 0), App.Vector(0, 0, 1), 6), False)
sketch18.addConstraint([
    Sketcher.Constraint("PointOnObject", 0, 3, -1),
    Sketcher.Constraint("Diameter", 0, 12.0),
    Sketcher.Constraint("DistanceX", 0, 3, -1, 1, 84.0),
])
sketch18.setExpression("Constraints[1]", "Params.sketch18_diameter")
pocket13 = body.newObject("PartDesign::Pocket", "Pocket012")
pocket13.Profile = sketch18
pocket13.Type = "ThroughAll"
pocket13.Reversed = True

doc.recompute()
